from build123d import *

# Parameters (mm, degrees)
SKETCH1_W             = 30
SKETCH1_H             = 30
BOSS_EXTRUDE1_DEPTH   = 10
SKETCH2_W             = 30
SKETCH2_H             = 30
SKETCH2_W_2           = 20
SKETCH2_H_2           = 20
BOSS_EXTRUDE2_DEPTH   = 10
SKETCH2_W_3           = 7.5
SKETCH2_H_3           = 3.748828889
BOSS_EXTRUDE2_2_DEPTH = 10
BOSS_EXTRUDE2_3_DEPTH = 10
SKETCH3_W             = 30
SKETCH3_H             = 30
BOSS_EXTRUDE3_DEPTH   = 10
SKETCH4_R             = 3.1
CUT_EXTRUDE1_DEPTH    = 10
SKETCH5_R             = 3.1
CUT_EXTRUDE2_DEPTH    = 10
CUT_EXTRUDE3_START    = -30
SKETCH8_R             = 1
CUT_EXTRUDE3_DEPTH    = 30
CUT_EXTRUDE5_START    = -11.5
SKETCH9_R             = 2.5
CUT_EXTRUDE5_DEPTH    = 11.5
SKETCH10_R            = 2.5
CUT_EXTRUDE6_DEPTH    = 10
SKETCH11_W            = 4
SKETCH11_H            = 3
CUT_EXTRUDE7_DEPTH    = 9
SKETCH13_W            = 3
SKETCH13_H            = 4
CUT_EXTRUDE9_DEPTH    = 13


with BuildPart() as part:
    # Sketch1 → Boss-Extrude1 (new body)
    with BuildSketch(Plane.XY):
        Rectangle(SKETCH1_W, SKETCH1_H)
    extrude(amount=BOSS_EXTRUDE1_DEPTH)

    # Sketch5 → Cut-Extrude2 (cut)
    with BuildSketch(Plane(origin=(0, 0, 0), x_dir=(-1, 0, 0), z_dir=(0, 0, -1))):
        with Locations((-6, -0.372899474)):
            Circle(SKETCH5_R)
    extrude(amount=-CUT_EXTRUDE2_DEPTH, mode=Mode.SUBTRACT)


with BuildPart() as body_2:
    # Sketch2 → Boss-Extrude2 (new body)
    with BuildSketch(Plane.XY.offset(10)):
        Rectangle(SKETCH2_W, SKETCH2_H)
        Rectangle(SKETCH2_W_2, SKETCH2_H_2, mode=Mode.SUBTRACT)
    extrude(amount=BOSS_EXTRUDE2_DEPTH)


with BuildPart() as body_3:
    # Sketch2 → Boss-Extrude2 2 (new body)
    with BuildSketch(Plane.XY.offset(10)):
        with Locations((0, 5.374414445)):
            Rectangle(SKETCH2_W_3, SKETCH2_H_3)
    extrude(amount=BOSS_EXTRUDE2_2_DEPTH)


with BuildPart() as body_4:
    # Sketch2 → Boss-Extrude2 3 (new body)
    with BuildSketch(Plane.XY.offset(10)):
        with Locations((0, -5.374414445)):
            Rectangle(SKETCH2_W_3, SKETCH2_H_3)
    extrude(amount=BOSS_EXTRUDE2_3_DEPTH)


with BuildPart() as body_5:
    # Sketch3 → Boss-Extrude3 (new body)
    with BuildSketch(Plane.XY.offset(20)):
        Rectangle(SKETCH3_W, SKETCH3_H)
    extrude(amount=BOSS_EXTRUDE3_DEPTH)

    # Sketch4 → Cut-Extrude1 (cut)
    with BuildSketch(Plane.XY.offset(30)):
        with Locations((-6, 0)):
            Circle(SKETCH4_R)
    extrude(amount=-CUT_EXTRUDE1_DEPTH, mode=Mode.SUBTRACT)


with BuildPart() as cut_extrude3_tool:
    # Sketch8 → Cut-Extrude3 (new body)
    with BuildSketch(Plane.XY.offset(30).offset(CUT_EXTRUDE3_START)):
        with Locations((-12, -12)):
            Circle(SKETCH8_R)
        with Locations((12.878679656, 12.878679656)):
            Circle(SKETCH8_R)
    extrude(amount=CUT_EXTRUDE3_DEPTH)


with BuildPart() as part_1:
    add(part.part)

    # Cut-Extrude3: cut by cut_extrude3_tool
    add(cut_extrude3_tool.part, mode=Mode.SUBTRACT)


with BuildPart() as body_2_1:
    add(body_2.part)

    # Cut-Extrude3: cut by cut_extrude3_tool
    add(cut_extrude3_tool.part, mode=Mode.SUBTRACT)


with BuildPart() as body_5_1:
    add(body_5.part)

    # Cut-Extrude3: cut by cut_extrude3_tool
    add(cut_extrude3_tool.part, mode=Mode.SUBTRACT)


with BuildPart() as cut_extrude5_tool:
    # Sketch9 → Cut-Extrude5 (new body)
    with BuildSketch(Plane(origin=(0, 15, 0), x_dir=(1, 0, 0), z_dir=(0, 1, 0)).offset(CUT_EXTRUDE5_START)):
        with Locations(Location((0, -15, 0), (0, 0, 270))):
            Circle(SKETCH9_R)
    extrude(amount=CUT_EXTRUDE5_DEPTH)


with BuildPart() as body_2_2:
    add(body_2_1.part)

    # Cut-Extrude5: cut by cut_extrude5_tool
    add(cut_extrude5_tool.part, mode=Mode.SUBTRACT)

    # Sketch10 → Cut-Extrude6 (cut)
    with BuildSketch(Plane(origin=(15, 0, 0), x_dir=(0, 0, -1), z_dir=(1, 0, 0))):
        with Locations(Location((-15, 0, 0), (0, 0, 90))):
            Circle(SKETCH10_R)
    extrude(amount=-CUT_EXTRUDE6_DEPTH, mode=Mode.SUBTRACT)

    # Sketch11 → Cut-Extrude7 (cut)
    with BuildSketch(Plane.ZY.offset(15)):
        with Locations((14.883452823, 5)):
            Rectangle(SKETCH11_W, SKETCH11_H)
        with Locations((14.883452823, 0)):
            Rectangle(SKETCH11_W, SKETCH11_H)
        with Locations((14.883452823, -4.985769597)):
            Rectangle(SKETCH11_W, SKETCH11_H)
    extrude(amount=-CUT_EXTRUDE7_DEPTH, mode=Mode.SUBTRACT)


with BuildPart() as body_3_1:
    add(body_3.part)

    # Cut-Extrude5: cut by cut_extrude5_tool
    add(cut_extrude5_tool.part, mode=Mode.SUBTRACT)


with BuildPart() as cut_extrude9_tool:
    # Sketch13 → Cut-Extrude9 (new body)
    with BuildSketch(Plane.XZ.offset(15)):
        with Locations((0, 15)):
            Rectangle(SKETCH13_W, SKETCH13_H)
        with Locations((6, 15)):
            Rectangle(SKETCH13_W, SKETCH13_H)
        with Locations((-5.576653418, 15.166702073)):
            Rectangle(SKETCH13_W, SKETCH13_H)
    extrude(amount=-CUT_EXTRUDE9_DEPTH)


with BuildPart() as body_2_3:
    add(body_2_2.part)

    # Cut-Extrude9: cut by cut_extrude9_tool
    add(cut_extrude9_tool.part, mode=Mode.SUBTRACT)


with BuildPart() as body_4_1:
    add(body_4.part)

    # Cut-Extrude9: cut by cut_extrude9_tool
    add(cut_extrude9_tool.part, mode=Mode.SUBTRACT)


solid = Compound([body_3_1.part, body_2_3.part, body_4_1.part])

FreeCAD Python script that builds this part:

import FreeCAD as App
import Part
import Sketcher

doc = App.newDocument("Part")
body = doc.addObject("PartDesign::Body", "Body")

# Sketch on XY plane
sketch1 = body.newObject("Sketcher::SketchObject", "Sketch")
sketch1.AttachmentSupport = (doc.getObject("XY_Plane"), [""])
sketch1.MapMode = "FlatFace"
sketch1.addGeometry([
    Part.LineSegment(App.Vector(-15, 15, 0), App.Vector(-15, -15, 0)),
    Part.LineSegment(App.Vector(-15, -15, 0), App.Vector(15, -15, 0)),
    Part.LineSegment(App.Vector(15, -15, 0), App.Vector(15, 15, 0)),
    Part.LineSegment(App.Vector(15, 15, 0), App.Vector(-15, 15, 0)),
], False)
sketch1.addConstraint([
    Sketcher.Constraint("Coincident", 0, 2, 1, 1),
    Sketcher.Constraint("Coincident", 1, 2, 2, 1),
    Sketcher.Constraint("Coincident", 2, 2, 3, 1),
    Sketcher.Constraint("Coincident", 3, 2, 0, 1),
    Sketcher.Constraint("Vertical", 0),
    Sketcher.Constraint("Horizontal", 1),
    Sketcher.Constraint("Vertical", 2),
    Sketcher.Constraint("Horizontal", 3),
    Sketcher.Constraint("Symmetric", 0, 2, 2, 2, -1, 1),
    Sketcher.Constraint("Equal", 3, 0),
    Sketcher.Constraint("DistanceX", 1, 1, 1, 2, 30.0),
])
pad1 = body.newObject("PartDesign::Pad", "Pad")
pad1.Profile = sketch1
pad1.Length = 10

# Sketch on XY plane
sketch2 = body.newObject("Sketcher::SketchObject", "Sketch001")
sketch2.AttachmentSupport = (doc.getObject("XY_Plane"), [""])
sketch2.MapMode = "FlatFace"
sketch2.addGeometry(Part.Circle(App.Vector(6, -0.4, 0), App.Vector(0, 0, 1), 3.1), False)
sketch2.addConstraint([
    Sketcher.Constraint("Diameter", 0, 6.2),
    Sketcher.Constraint("DistanceX", -1, 1, 0, 3, 6.0),
    Sketcher.Constraint("DistanceY", 0, 3, -1, 1, 0.372899),
])
pocket1 = body.newObject("PartDesign::Pocket", "Pocket")
pocket1.Profile = sketch2
pocket1.Length = 10
pocket1.Reversed = True
body2 = doc.addObject("PartDesign::Body", "Body001")

# Sketch on XY plane
sketch3 = body2.newObject("Sketcher::SketchObject", "Sketch002")
sketch3.AttachmentSupport = (doc.getObject("XY_Plane001"), [""])
sketch3.MapMode = "FlatFace"
sketch3.AttachmentOffset = App.Placement(App.Vector(0, 0, 10), App.Rotation())
sketch3.addGeometry([
    Part.LineSegment(App.Vector(-15, 15, 0), App.Vector(-15, -15, 0)),  # 0
    Part.LineSegment(App.Vector(-15, -15, 0), App.Vector(15, -15, 0)),  # 1
    Part.LineSegment(App.Vector(15, -15, 0), App.Vector(15, 15, 0)),  # 2
    Part.LineSegment(App.Vector(15, 15, 0), App.Vector(-15, 15, 0)),  # 3
    Part.LineSegment(App.Vector(10, -10, 0), App.Vector(-10, -10, 0)),  # 4
    Part.LineSegment(App.Vector(-10, -10, 0), App.Vector(-10, 10, 0)),  # 5
    Part.LineSegment(App.Vector(-10, 10, 0), App.Vector(10, 10, 0)),  # 6
    Part.LineSegment(App.Vector(10, 10, 0), App.Vector(10, -10, 0)),  # 7
], False)
sketch3.addConstraint([
    Sketcher.Constraint("Coincident", 0, 2, 1, 1),
    Sketcher.Constraint("Coincident", 1, 2, 2, 1),
    Sketcher.Constraint("Coincident", 2, 2, 3, 1),
    Sketcher.Constraint("Coincident", 3, 2, 0, 1),
    Sketcher.Constraint("Coincident", 4, 2, 5, 1),
    Sketcher.Constraint("Coincident", 5, 2, 6, 1),
    Sketcher.Constraint("Coincident", 6, 2, 7, 1),
    Sketcher.Constraint("Coincident", 7, 2, 4, 1),
    Sketcher.Constraint("Vertical", 0),
    Sketcher.Constraint("Horizontal", 1),
    Sketcher.Constraint("Vertical", 2),
    Sketcher.Constraint("Horizontal", 3),
    Sketcher.Constraint("Horizontal", 4),
    Sketcher.Constraint("Vertical", 5),
    Sketcher.Constraint("Horizontal", 6),
    Sketcher.Constraint("Vertical", 7),
    Sketcher.Constraint("Symmetric", 0, 2, 2, 2, -1, 1),
    Sketcher.Constraint("Symmetric", 4, 2, 6, 2, -1, 1),
    Sketcher.Constraint("Equal", 3, 0),
    Sketcher.Constraint("Equal", 6, 5),
    Sketcher.Constraint("DistanceX", 1, 1, 1, 2, 30.0),
    Sketcher.Constraint("DistanceX", 4, 2, 4, 1, 20.0),
])
pad2 = body2.newObject("PartDesign::Pad", "Pad001")
pad2.Profile = sketch3
pad2.Length = 10
body3 = doc.addObject("PartDesign::Body", "Body002")

# Sketch on XY plane
sketch4 = body3.newObject("Sketcher::SketchObject", "Sketch003")
sketch4.AttachmentSupport = (doc.getObject("XY_Plane002"), [""])
sketch4.MapMode = "FlatFace"
sketch4.AttachmentOffset = App.Placement(App.Vector(0, 0, 10), App.Rotation())
sketch4.addGeometry([
    Part.LineSegment(App.Vector(-3.8, 7.2, 0), App.Vector(-3.8, 3.5, 0)),
    Part.LineSegment(App.Vector(-3.8, 3.5, 0), App.Vector(3.8, 3.5, 0)),
    Part.LineSegment(App.Vector(3.8, 3.5, 0), App.Vector(3.8, 7.2, 0)),
    Part.LineSegment(App.Vector(3.8, 7.2, 0), App.Vector(-3.8, 7.2, 0)),
], False)
sketch4.addConstraint([
    Sketcher.Constraint("Coincident", 0, 2, 1, 1),
    Sketcher.Constraint("Coincident", 1, 2, 2, 1),
    Sketcher.Constraint("Coincident", 2, 2, 3, 1),
    Sketcher.Constraint("Coincident", 3, 2, 0, 1),
    Sketcher.Constraint("Vertical", 0),
    Sketcher.Constraint("Horizontal", 1),
    Sketcher.Constraint("Vertical", 2),
    Sketcher.Constraint("Horizontal", 3),
    Sketcher.Constraint("DistanceX", 1, 1, 1, 2, 7.5),
    Sketcher.Constraint("DistanceY", -1, 1, 0, 2, 3.5),
    Sketcher.Constraint("DistanceX", 0, 2, -1, 1, 3.75),
    Sketcher.Constraint("DistanceY", 0, 2, 0, 1, 3.748829),
])
pad3 = body3.newObject("PartDesign::Pad", "Pad002")
pad3.Profile = sketch4
pad3.Length = 10
body4 = doc.addObject("PartDesign::Body", "Body003")

# Sketch on XY plane
sketch5 = body4.newObject("Sketcher::SketchObject", "Sketch004")
sketch5.AttachmentSupport = (doc.getObject("XY_Plane003"), [""])
sketch5.MapMode = "FlatFace"
sketch5.AttachmentOffset = App.Placement(App.Vector(0, 0, 10), App.Rotation())
sketch5.addGeometry([
    Part.LineSegment(App.Vector(-3.8, -3.5, 0), App.Vector(-3.8, -7.2, 0)),
    Part.LineSegment(App.Vector(-3.8, -7.2, 0), App.Vector(3.8, -7.2, 0)),
    Part.LineSegment(App.Vector(3.8, -7.2, 0), App.Vector(3.8, -3.5, 0)),
    Part.LineSegment(App.Vector(3.8, -3.5, 0), App.Vector(-3.8, -3.5, 0)),
], False)
sketch5.addConstraint([
    Sketcher.Constraint("Coincident", 0, 2, 1, 1),
    Sketcher.Constraint("Coincident", 1, 2, 2, 1),
    Sketcher.Constraint("Coincident", 2, 2, 3, 1),
    Sketcher.Constraint("Coincident", 3, 2, 0, 1),
    Sketcher.Constraint("Vertical", 0),
    Sketcher.Constraint("Horizontal", 1),
    Sketcher.Constraint("Vertical", 2),
    Sketcher.Constraint("Horizontal", 3),
    Sketcher.Constraint("DistanceX", 1, 1, 1, 2, 7.5),
    Sketcher.Constraint("DistanceY", 2, 2, -1, 1, 3.5),
    Sketcher.Constraint("DistanceX", 0, 2, -1, 1, 3.75),
    Sketcher.Constraint("DistanceY", 0, 2, 0, 1, 3.748829),
])
pad4 = body4.newObject("PartDesign::Pad", "Pad003")
pad4.Profile = sketch5
pad4.Length = 10
body5 = doc.addObject("PartDesign::Body", "Body004")

# Sketch on XY plane
sketch6 = body5.newObject("Sketcher::SketchObject", "Sketch005")
sketch6.AttachmentSupport = (doc.getObject("XY_Plane004"), [""])
sketch6.MapMode = "FlatFace"
sketch6.AttachmentOffset = App.Placement(App.Vector(0, 0, 20), App.Rotation())
sketch6.addGeometry([
    Part.LineSegment(App.Vector(-15, 15, 0), App.Vector(-15, -15, 0)),
    Part.LineSegment(App.Vector(-15, -15, 0), App.Vector(15, -15, 0)),
    Part.LineSegment(App.Vector(15, -15, 0), App.Vector(15, 15, 0)),
    Part.LineSegment(App.Vector(15, 15, 0), App.Vector(-15, 15, 0)),
], False)
sketch6.addConstraint([
    Sketcher.Constraint("Coincident", 0, 2, 1, 1),
    Sketcher.Constraint("Coincident", 1, 2, 2, 1),
    Sketcher.Constraint("Coincident", 2, 2, 3, 1),
    Sketcher.Constraint("Coincident", 3, 2, 0, 1),
    Sketcher.Constraint("Vertical", 0),
    Sketcher.Constraint("Horizontal", 1),
    Sketcher.Constraint("Vertical", 2),
    Sketcher.Constraint("Horizontal", 3),
    Sketcher.Constraint("Symmetric", 0, 2, 2, 2, -1, 1),
    Sketcher.Constraint("Equal", 3, 0),
    Sketcher.Constraint("DistanceX", 1, 1, 1, 2, 30.0),
])
pad5 = body5.newObject("PartDesign::Pad", "Pad004")
pad5.Profile = sketch6
pad5.Length = 10

# Sketch on XY plane
sketch7 = body5.newObject("Sketcher::SketchObject", "Sketch006")
sketch7.AttachmentSupport = (doc.getObject("XY_Plane004"), [""])
sketch7.MapMode = "FlatFace"
sketch7.AttachmentOffset = App.Placement(App.Vector(0, 0, 30), App.Rotation())
sketch7.addGeometry(Part.Circle(App.Vector(-6, 0, 0), App.Vector(0, 0, 1), 3.1), False)
sketch7.addConstraint([
    Sketcher.Constraint("PointOnObject", 0, 3, -1),
    Sketcher.Constraint("Diameter", 0, 6.2),
    Sketcher.Constraint("DistanceX", 0, 3, -1, 1, 6.0),
])
pocket2 = body5.newObject("PartDesign::Pocket", "Pocket001")
pocket2.Profile = sketch7
pocket2.Length = 10
body6 = doc.addObject("PartDesign::Body", "Body005")
body6.AllowCompound = True

# Sketch on XY plane
sketch8 = body6.newObject("Sketcher::SketchObject", "Sketch007")
sketch8.AttachmentSupport = (doc.getObject("XY_Plane005"), [""])
sketch8.MapMode = "FlatFace"
sketch8.addGeometry([
    Part.Circle(App.Vector(-12, -12, 0), App.Vector(0, 0, 1), 1),
    Part.Circle(App.Vector(12.9, 12.9, 0), App.Vector(0, 0, 1), 1),
], False)
sketch8.addConstraint([
    Sketcher.Constraint("Equal", 0, 1),
    Sketcher.Constraint("Diameter", 0, 2.0),
    Sketcher.Constraint("DistanceX", 0, 3, -1, 1, 12.0),
    Sketcher.Constraint("DistanceY", 0, 3, -1, 1, 12.0),
    Sketcher.Constraint("DistanceX", -1, 1, 1, 3, 12.87868),
    Sketcher.Constraint("DistanceY", -1, 1, 1, 3, 12.87868),
])
pad6 = body6.newObject("PartDesign::Pad", "Pad005")
pad6.Profile = sketch8
pad6.Length = 30
doc.recompute()

body7 = doc.addObject("PartDesign::Body", "Body006")
body7.BaseFeature = body6
boolean = body.newObject("PartDesign::Boolean", "Boolean")
boolean.Type = "Cut"
boolean.addObjects([body7])
doc.recompute()

body8 = doc.addObject("PartDesign::Body", "Body007")
body8.BaseFeature = body6
boolean2 = body2.newObject("PartDesign::Boolean", "Boolean001")
boolean2.Type = "Cut"
boolean2.addObjects([body8])
doc.recompute()

boolean3 = body5.newObject("PartDesign::Boolean", "Boolean002")
boolean3.Type = "Cut"
boolean3.addObjects([body6])
body9 = doc.addObject("PartDesign::Body", "Body008")

# Sketch on XZ plane
sketch9 = body9.newObject("Sketcher::SketchObject", "Sketch008")
sketch9.AttachmentSupport = (doc.getObject("XZ_Plane008"), [""])
sketch9.MapMode = "FlatFace"
sketch9.AttachmentOffset = App.Placement(App.Vector(0, 0, -3.5), App.Rotation())
sketch9.addGeometry(Part.Circle(App.Vector(0, 15, 0), App.Vector(0, 0, 1), 2.5), False)
sketch9.addConstraint([
    Sketcher.Constraint("PointOnObject", 0, 3, -2),
    Sketcher.Constraint("Diameter", 0, 5.0),
    Sketcher.Constraint("DistanceY", -1, 1, 0, 3, 15.0),
])
pad7 = body9.newObject("PartDesign::Pad", "Pad006")
pad7.Profile = sketch9
pad7.Length = 11.5
pad7.Reversed = True
doc.recompute()

body10 = doc.addObject("PartDesign::Body", "Body009")
body10.BaseFeature = body9
boolean4 = body2.newObject("PartDesign::Boolean", "Boolean003")
boolean4.Type = "Cut"
boolean4.addObjects([body10])
doc.recompute()

# Sketch on YZ plane
sketch10 = body2.newObject("Sketcher::SketchObject", "Sketch009")
sketch10.AttachmentSupport = (doc.getObject("YZ_Plane001"), [""])
sketch10.MapMode = "FlatFace"
sketch10.AttachmentOffset = App.Placement(App.Vector(0, 0, 15), App.Rotation())
sketch10.addGeometry(Part.Circle(App.Vector(0, 15, 0), App.Vector(0, 0, 1), 2.5), False)
sketch10.addConstraint([
    Sketcher.Constraint("PointOnObject", 0, 3, -2),
    Sketcher.Constraint("Diameter", 0, 5.0),
    Sketcher.Constraint("DistanceY", -1, 1, 0, 3, 15.0),
])
pocket3 = body2.newObject("PartDesign::Pocket", "Pocket002")
pocket3.Profile = sketch10
pocket3.Length = 10

# Sketch on YZ plane
sketch11 = body2.newObject("Sketcher::SketchObject", "Sketch010")
sketch11.AttachmentSupport = (doc.getObject("YZ_Plane001"), [""])
sketch11.MapMode = "FlatFace"
sketch11.AttachmentOffset = App.Placement(App.Vector(0, 0, -15), App.Rotation())
sketch11.addGeometry([
    Part.LineSegment(App.Vector(6.5, 12.9, 0), App.Vector(3.5, 12.9, 0)),  # 0
    Part.LineSegment(App.Vector(3.5, 12.9, 0), App.Vector(3.5, 16.9, 0)),  # 1
    Part.LineSegment(App.Vector(3.5, 16.9, 0), App.Vector(6.5, 16.9, 0)),  # 2
    Part.LineSegment(App.Vector(6.5, 16.9, 0), App.Vector(6.5, 12.9, 0)),  # 3
    Part.LineSegment(App.Vector(1.5, 12.9, 0), App.Vector(-1.5, 12.9, 0)),  # 4
    Part.LineSegment(App.Vector(-1.5, 12.9, 0), App.Vector(-1.5, 16.9, 0)),  # 5
    Part.LineSegment(App.Vector(-1.5, 16.9, 0), App.Vector(1.5, 16.9, 0)),  # 6
    Part.LineSegment(App.Vector(1.5, 16.9, 0), App.Vector(1.5, 12.9, 0)),  # 7
    Part.LineSegment(App.Vector(-3.5, 12.9, 0), App.Vector(-6.5, 12.9, 0)),  # 8
    Part.LineSegment(App.Vector(-6.5, 12.9, 0), App.Vector(-6.5, 16.9, 0)),  # 9
    Part.LineSegment(App.Vector(-6.5, 16.9, 0), App.Vector(-3.5, 16.9, 0)),  # 10
    Part.LineSegment(App.Vector(-3.5, 16.9, 0), App.Vector(-3.5, 12.9, 0)),  # 11
], False)
sketch11.addConstraint([
    Sketcher.Constraint("Coincident", 0, 2, 1, 1),
    Sketcher.Constraint("Coincident", 1, 2, 2, 1),
    Sketcher.Constraint("Coincident", 2, 2, 3, 1),
    Sketcher.Constraint("Coincident", 3, 2, 0, 1),
    Sketcher.Constraint("Coincident", 4, 2, 5, 1),
    Sketcher.Constraint("Coincident", 5, 2, 6, 1),
    Sketcher.Constraint("Coincident", 6, 2, 7, 1),
    Sketcher.Constraint("Coincident", 7, 2, 4, 1),
    Sketcher.Constraint("Coincident", 8, 2, 9, 1),
    Sketcher.Constraint("Coincident", 9, 2, 10, 1),
    Sketcher.Constraint("Coincident", 10, 2, 11, 1),
    Sketcher.Constraint("Coincident", 11, 2, 8, 1),
    Sketcher.Constraint("Horizontal", 0),
    Sketcher.Constraint("Vertical", 1),
    Sketcher.Constraint("Horizontal", 2),
    Sketcher.Constraint("Vertical", 3),
    Sketcher.Constraint("Horizontal", 4),
    Sketcher.Constraint("Vertical", 5),
    Sketcher.Constraint("Horizontal", 6),
    Sketcher.Constraint("Vertical", 7),
    Sketcher.Constraint("Horizontal", 8),
    Sketcher.Constraint("Vertical", 9),
    Sketcher.Constraint("Horizontal", 10),
    Sketcher.Constraint("Vertical", 11),
    Sketcher.Constraint("Horizontal", 3, 2, 4, 2),
    Sketcher.Constraint("Horizontal", 2, 2, 5, 2),
    Sketcher.Constraint("Horizontal", 7, 2, 8, 2),
    Sketcher.Constraint("Horizontal", 6, 2, 9, 2),
    Sketcher.Constraint("Equal", 2, 4),
    Sketcher.Constraint("Equal", 6, 8),
    Sketcher.Constraint("DistanceX", 0, 2, 0, 1, 3.0),
    Sketcher.Constraint("DistanceY", 1, 1, 1, 2, 4.0),
    Sketcher.Constraint("DistanceX", 4, 2, 0, 2, 5.0),
    Sketcher.Constraint("DistanceX", -1, 1, 0, 2, 3.5),
    Sketcher.Constraint("DistanceX", 8, 2, -1, 1, 6.48577),
    Sketcher.Constraint("DistanceY", -1, 1, 0, 2, 12.883453),
])
pocket4 = body2.newObject("PartDesign::Pocket", "Pocket003")
pocket4.Profile = sketch11
pocket4.Length = 9
pocket4.Reversed = True
doc.recompute()

boolean5 = body3.newObject("PartDesign::Boolean", "Boolean004")
boolean5.Type = "Cut"
boolean5.addObjects([body9])
body11 = doc.addObject("PartDesign::Body", "Body010")
body11.AllowCompound = True

# Sketch on XZ plane
sketch12 = body11.newObject("Sketcher::SketchObject", "Sketch011")
sketch12.AttachmentSupport = (doc.getObject("XZ_Plane010"), [""])
sketch12.MapMode = "FlatFace"
sketch12.AttachmentOffset = App.Placement(App.Vector(0, 0, 15), App.Rotation())
sketch12.addGeometry([
    Part.LineSegment(App.Vector(-1.5, 17, 0), App.Vector(-1.5, 13, 0)),  # 0
    Part.LineSegment(App.Vector(-1.5, 13, 0), App.Vector(1.5, 13, 0)),  # 1
    Part.LineSegment(App.Vector(1.5, 13, 0), App.Vector(1.5, 17, 0)),  # 2
    Part.LineSegment(App.Vector(1.5, 17, 0), App.Vector(-1.5, 17, 0)),  # 3
    Part.LineSegment(App.Vector(4.5, 17, 0), App.Vector(4.5, 13, 0)),  # 4
    Part.LineSegment(App.Vector(4.5, 13, 0), App.Vector(7.5, 13, 0)),  # 5
    Part.LineSegment(App.Vector(7.5, 13, 0), App.Vector(7.5, 17, 0)),  # 6
    Part.LineSegment(App.Vector(7.5, 17, 0), App.Vector(4.5, 17, 0)),  # 7
    Part.LineSegment(App.Vector(-7.1, 17.2, 0), App.Vector(-7.1, 13.2, 0)),  # 8
    Part.LineSegment(App.Vector(-7.1, 13.2, 0), App.Vector(-4.1, 13.2, 0)),  # 9
    Part.LineSegment(App.Vector(-4.1, 13.2, 0), App.Vector(-4.1, 17.2, 0)),  # 10
    Part.LineSegment(App.Vector(-4.1, 17.2, 0), App.Vector(-7.1, 17.2, 0)),  # 11
], False)
sketch12.addConstraint([
    Sketcher.Constraint("Coincident", 0, 2, 1, 1),
    Sketcher.Constraint("Coincident", 1, 2, 2, 1),
    Sketcher.Constraint("Coincident", 2, 2, 3, 1),
    Sketcher.Constraint("Coincident", 3, 2, 0, 1),
    Sketcher.Constraint("Coincident", 4, 2, 5, 1),
    Sketcher.Constraint("Coincident", 5, 2, 6, 1),
    Sketcher.Constraint("Coincident", 6, 2, 7, 1),
    Sketcher.Constraint("Coincident", 7, 2, 4, 1),
    Sketcher.Constraint("Coincident", 8, 2, 9, 1),
    Sketcher.Constraint("Coincident", 9, 2, 10, 1),
    Sketcher.Constraint("Coincident", 10, 2, 11, 1),
    Sketcher.Constraint("Coincident", 11, 2, 8, 1),
    Sketcher.Constraint("Vertical", 0),
    Sketcher.Constraint("Horizontal", 1),
    Sketcher.Constraint("Vertical", 2),
    Sketcher.Constraint("Horizontal", 3),
    Sketcher.Constraint("Vertical", 4),
    Sketcher.Constraint("Horizontal", 5),
    Sketcher.Constraint("Vertical", 6),
    Sketcher.Constraint("Horizontal", 7),
    Sketcher.Constraint("Vertical", 8),
    Sketcher.Constraint("Horizontal", 9),
    Sketcher.Constraint("Vertical", 10),
    Sketcher.Constraint("Horizontal", 11),
    Sketcher.Constraint("Horizontal", 1, 2, 4, 2),
    Sketcher.Constraint("Horizontal", 3, 2, 6, 2),
    Sketcher.Constraint("Equal", 3, 5),
    Sketcher.Constraint("Equal", 7, 9),
    Sketcher.Constraint("Equal", 6, 8),
    Sketcher.Constraint("DistanceX", 1, 1, 1, 2, 3.0),
    Sketcher.Constraint("DistanceY", 0, 2, 0, 1, 4.0),
    Sketcher.Constraint("DistanceY", -1, 1, 0, 2, 13.0),
    Sketcher.Constraint("DistanceX", 1, 2, 4, 2, 3.0),
    Sketcher.Constraint("DistanceX", 0, 2, -1, 1, 1.5),
    Sketcher.Constraint("DistanceX", 8, 2, -1, 1, 7.076653),
    Sketcher.Constraint("DistanceY", -1, 1, 8, 2, 13.166702),
])
pad8 = body11.newObject("PartDesign::Pad", "Pad007")
pad8.Profile = sketch12
pad8.Length = 13
pad8.Reversed = True
doc.recompute()

body12 = doc.addObject("PartDesign::Body", "Body011")
body12.BaseFeature = body11
boolean6 = body2.newObject("PartDesign::Boolean", "Boolean005")
boolean6.Type = "Cut"
boolean6.addObjects([body12])
doc.recompute()

boolean7 = body4.newObject("PartDesign::Boolean", "Boolean006")
boolean7.Type = "Cut"
boolean7.addObjects([body11])
body.Visibility = False
body5.Visibility = False

doc.recompute()
